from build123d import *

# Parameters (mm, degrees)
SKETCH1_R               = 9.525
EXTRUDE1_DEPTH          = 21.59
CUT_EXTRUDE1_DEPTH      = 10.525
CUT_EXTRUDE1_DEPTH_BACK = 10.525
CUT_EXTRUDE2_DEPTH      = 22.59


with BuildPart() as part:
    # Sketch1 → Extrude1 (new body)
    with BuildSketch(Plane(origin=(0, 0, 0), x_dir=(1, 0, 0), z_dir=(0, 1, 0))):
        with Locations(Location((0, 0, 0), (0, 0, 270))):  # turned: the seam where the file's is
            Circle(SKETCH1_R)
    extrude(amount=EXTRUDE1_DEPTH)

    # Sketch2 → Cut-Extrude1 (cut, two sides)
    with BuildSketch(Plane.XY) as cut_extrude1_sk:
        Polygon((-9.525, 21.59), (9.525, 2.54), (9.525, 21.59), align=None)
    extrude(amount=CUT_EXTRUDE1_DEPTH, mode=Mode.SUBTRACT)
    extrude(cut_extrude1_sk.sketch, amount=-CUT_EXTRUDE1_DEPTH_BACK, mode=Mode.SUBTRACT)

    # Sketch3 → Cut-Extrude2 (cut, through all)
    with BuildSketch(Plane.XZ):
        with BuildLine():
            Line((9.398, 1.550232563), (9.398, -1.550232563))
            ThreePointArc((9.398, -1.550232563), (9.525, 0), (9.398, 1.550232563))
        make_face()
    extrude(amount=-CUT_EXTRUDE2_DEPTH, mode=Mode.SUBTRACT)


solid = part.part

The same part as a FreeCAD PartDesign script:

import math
import FreeCAD as App
import Part
import Sketcher
from FreeCAD import Vector
Q = App.Units.Quantity

doc = App.newDocument("Part")
params = doc.addObject("Spreadsheet::Sheet", "Params")
for row, (alias, value) in enumerate([
    ("sketch1_diameter", "0.75 in"),
    ("pad1_length", "0.85 in"),
    ("sketch2_width", "0.75 in"),
    ("sketch3_radius", "0.375 in"),
], start=1):
    params.set(f"A{row}", alias)
    params.set(f"B{row}", "=" + value)
    params.setAlias(f"B{row}", alias)

body = doc.addObject("PartDesign::Body", "Body")

sketch1 = doc.addObject("Sketcher::SketchObject", "Sketch")
body.addObject(sketch1)
sketch1.AttachmentSupport = (doc.XZ_Plane, [""])
sketch1.MapMode = "FlatFace"
sketch1.addGeometry(Part.Circle(Vector(0, 0, 0), Vector(0, 0, 1), 10), False)
sketch1.addConstraint(Sketcher.Constraint("Coincident", 0, 3, -1, 1))
sketch1.addConstraint(Sketcher.Constraint("Diameter", 0, Q("0.75 in")))
sketch1.setExpression("Constraints[1]", "Params.sketch1_diameter")
pad1 = doc.addObject("PartDesign::Pad", "Pad")
body.addObject(pad1)
pad1.Profile = sketch1
pad1.setExpression("Length", "Params.pad1_length")
pad1.Reversed = True

sketch2 = doc.addObject("Sketcher::SketchObject", "Sketch001")
body.addObject(sketch2)
sketch2.AttachmentSupport = (doc.XY_Plane, [""])
sketch2.MapMode = "FlatFace"
sketch2.addGeometry(Part.LineSegment(Vector(-10, 22, 0), Vector(10, 3, 0)), False)
sketch2.addGeometry(Part.LineSegment(Vector(10, 3, 0), Vector(10, 22, 0)), False)
sketch2.addGeometry(Part.LineSegment(Vector(10, 22, 0), Vector(-10, 22, 0)), False)
sketch2.addConstraint(Sketcher.Constraint("Coincident", 0, 2, 1, 1))
sketch2.addConstraint(Sketcher.Constraint("Coincident", 1, 2, 2, 1))
sketch2.addConstraint(Sketcher.Constraint("Coincident", 2, 2, 0, 1))
sketch2.addConstraint(Sketcher.Constraint("Vertical", 1))
sketch2.addConstraint(Sketcher.Constraint("Horizontal", 2))
sketch2.addConstraint(Sketcher.Constraint("Equal", 2, 1))
sketch2.addConstraint(Sketcher.Constraint("DistanceX", 2, 2, 2, 1, Q("0.75 in")))
sketch2.addConstraint(Sketcher.Constraint("DistanceY", -1, 1, 0, 2, Q("0.1 in")))
sketch2.addConstraint(Sketcher.Constraint("DistanceX", -1, 1, 0, 2, Q("0.375 in")))
sketch2.setExpression("Constraints[6]", "Params.sketch2_width")
pocket1 = doc.addObject("PartDesign::Pocket", "Pocket")
body.addObject(pocket1)
pocket1.Profile = sketch2
pocket1.Type = "ThroughAll"
pocket1.Midplane = True

sketch3 = doc.addObject("Sketcher::SketchObject", "Sketch002")
body.addObject(sketch3)
sketch3.AttachmentSupport = (doc.XZ_Plane, [""])
sketch3.MapMode = "FlatFace"
sketch3.addGeometry(Part.LineSegment(Vector(9.4, 1.6, 0), Vector(9.4, -1.6, 0)), False)
sketch3.addGeometry(Part.ArcOfCircle(Part.Circle(Vector(0, 0, 0), Vector(0, 0, 1), 9.5), math.radians(-9.37), math.radians(9.37)), False)
sketch3.addConstraint(Sketcher.Constraint("Coincident", 0, 1, 1, 2))
sketch3.addConstraint(Sketcher.Constraint("Coincident", 1, 1, 0, 2))
sketch3.addConstraint(Sketcher.Constraint("Vertical", 0))
sketch3.addConstraint(Sketcher.Constraint("Coincident", 1, 3, -1, 1))
sketch3.addConstraint(Sketcher.Constraint("Radius", 1, Q("0.375 in")))
sketch3.addConstraint(Sketcher.Constraint("DistanceX", -1, 1, 0, 1, Q("0.37 in")))
sketch3.setExpression("Constraints[4]", "Params.sketch3_radius")
pocket2 = doc.addObject("PartDesign::Pocket", "Pocket001")
body.addObject(pocket2)
pocket2.Profile = sketch3
pocket2.Type = "ThroughAll"

doc.recompute()
